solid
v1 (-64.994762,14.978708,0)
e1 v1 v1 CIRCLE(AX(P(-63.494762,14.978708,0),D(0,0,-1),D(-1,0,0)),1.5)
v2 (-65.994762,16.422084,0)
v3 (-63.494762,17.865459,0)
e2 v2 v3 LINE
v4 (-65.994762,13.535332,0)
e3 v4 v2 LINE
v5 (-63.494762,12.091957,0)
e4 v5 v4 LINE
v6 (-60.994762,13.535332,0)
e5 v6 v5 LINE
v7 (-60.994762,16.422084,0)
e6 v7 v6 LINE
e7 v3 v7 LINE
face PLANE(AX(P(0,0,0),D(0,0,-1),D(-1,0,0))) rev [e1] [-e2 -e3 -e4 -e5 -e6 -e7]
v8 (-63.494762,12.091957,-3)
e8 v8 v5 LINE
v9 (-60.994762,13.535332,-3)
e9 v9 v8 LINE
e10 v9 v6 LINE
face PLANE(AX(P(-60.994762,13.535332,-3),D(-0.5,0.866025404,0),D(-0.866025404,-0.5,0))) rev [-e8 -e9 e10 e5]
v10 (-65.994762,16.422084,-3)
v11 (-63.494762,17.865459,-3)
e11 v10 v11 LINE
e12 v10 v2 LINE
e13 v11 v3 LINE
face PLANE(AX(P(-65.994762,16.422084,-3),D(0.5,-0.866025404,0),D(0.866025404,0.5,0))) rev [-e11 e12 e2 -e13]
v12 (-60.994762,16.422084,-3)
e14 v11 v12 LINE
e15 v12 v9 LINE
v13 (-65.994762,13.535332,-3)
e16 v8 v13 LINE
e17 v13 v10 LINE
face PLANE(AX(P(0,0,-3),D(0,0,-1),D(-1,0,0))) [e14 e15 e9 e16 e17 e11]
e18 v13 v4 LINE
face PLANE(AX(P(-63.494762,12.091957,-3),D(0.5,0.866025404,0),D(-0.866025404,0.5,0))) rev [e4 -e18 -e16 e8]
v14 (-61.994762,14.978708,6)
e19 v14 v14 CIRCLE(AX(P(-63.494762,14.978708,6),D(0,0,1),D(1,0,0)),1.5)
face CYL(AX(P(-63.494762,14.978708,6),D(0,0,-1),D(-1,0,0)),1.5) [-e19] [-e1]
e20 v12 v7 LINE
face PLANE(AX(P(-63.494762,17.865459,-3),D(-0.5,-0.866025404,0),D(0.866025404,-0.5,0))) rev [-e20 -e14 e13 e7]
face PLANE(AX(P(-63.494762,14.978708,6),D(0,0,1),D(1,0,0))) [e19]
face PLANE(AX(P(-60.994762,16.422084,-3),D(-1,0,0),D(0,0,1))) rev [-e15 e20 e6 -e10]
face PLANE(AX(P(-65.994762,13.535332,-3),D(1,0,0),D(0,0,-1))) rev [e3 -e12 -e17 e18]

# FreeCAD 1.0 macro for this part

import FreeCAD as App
import Part
import Sketcher
Q = App.Units.Quantity

doc = App.newDocument("Part")
params = doc.addObject("Spreadsheet::Sheet", "Params")
for row, (alias, value) in enumerate([
    ("sketch1_diameter", "3 mm"),
    ("pad1_length", "6 mm"),
    ("pad2_length", "3 mm"),
], start=1):
    params.set(f"A{row}", alias)
    params.set(f"B{row}", "=" + value)
    params.setAlias(f"B{row}", alias)

body = doc.addObject("PartDesign::Body", "Body")

# Sketch on XY plane
sketch1 = body.newObject("Sketcher::SketchObject", "Sketch")
sketch1.AttachmentSupport = (doc.getObject("XY_Plane"), [""])
sketch1.MapMode = "FlatFace"
sketch1.addGeometry(Part.Circle(App.Vector(-63.5, 15, 0), App.Vector(0, 0, 1), 1.5), False)
sketch1.addConstraint(Sketcher.Constraint("Diameter", 0, Q("3 mm")))
sketch1.addConstraint(Sketcher.Constraint("DistanceX", 0, 3, -1, 1, Q("63.494762 mm")))
sketch1.addConstraint(Sketcher.Constraint("DistanceY", -1, 1, 0, 3, Q("14.978708 mm")))
sketch1.setExpression("Constraints[0]", "Params.sketch1_diameter")
pad1 = body.newObject("PartDesign::Pad", "Pad")
pad1.Profile = sketch1
pad1.setExpression("Length", "Params.pad1_length")

# Sketch on XY plane
sketch2 = body.newObject("Sketcher::SketchObject", "Sketch001")
sketch2.AttachmentSupport = (doc.getObject("XY_Plane"), [""])
sketch2.MapMode = "FlatFace"
sketch2.addGeometry(Part.LineSegment(App.Vector(-63.5, 12.1, 0), App.Vector(-66, 13.5, 0)), False)
sketch2.addGeometry(Part.LineSegment(App.Vector(-66, 13.5, 0), App.Vector(-66, 16.4, 0)), False)
sketch2.addGeometry(Part.LineSegment(App.Vector(-66, 16.4, 0), App.Vector(-63.5, 17.9, 0)), False)
sketch2.addGeometry(Part.LineSegment(App.Vector(-63.5, 17.9, 0), App.Vector(-61, 16.4, 0)), False)
sketch2.addGeometry(Part.LineSegment(App.Vector(-61, 16.4, 0), App.Vector(-61, 13.5, 0)), False)
sketch2.addGeometry(Part.LineSegment(App.Vector(-61, 13.5, 0), App.Vector(-63.5, 12.1, 0)), False)
sketch2.addConstraint(Sketcher.Constraint("Coincident", 0, 2, 1, 1))
sketch2.addConstraint(Sketcher.Constraint("Coincident", 1, 2, 2, 1))
sketch2.addConstraint(Sketcher.Constraint("Coincident", 2, 2, 3, 1))
sketch2.addConstraint(Sketcher.Constraint("Coincident", 3, 2, 4, 1))
sketch2.addConstraint(Sketcher.Constraint("Coincident", 4, 2, 5, 1))
sketch2.addConstraint(Sketcher.Constraint("Coincident", 5, 2, 0, 1))
sketch2.addConstraint(Sketcher.Constraint("Vertical", 1))
sketch2.addConstraint(Sketcher.Constraint("Vertical", 4))
sketch2.addConstraint(Sketcher.Constraint("Parallel", 0, 3))
sketch2.addConstraint(Sketcher.Constraint("Parallel", 2, 5))
sketch2.addConstraint(Sketcher.Constraint("Horizontal", 1, 2, 3, 2))
sketch2.addConstraint(Sketcher.Constraint("Horizontal", 0, 2, 4, 2))
sketch2.addConstraint(Sketcher.Constraint("Vertical", 2, 2, 5, 2))
sketch2.addConstraint(Sketcher.Constraint("Angle", 0, Q("150 deg")))
sketch2.addConstraint(Sketcher.Constraint("DistanceX", 1, 2, 3, 2, Q("5 mm")))
sketch2.addConstraint(Sketcher.Constraint("DistanceY", 1, 1, 1, 2, Q("2.886751 mm")))
sketch2.addConstraint(Sketcher.Constraint("DistanceX", 0, 2, -1, 1, Q("65.994762 mm")))
sketch2.addConstraint(Sketcher.Constraint("DistanceY", -1, 1, 2, 2, Q("17.865459 mm")))
pad2 = body.newObject("PartDesign::Pad", "Pad001")
pad2.Profile = sketch2
pad2.setExpression("Length", "Params.pad2_length")
pad2.Reversed = True

doc.recompute()
